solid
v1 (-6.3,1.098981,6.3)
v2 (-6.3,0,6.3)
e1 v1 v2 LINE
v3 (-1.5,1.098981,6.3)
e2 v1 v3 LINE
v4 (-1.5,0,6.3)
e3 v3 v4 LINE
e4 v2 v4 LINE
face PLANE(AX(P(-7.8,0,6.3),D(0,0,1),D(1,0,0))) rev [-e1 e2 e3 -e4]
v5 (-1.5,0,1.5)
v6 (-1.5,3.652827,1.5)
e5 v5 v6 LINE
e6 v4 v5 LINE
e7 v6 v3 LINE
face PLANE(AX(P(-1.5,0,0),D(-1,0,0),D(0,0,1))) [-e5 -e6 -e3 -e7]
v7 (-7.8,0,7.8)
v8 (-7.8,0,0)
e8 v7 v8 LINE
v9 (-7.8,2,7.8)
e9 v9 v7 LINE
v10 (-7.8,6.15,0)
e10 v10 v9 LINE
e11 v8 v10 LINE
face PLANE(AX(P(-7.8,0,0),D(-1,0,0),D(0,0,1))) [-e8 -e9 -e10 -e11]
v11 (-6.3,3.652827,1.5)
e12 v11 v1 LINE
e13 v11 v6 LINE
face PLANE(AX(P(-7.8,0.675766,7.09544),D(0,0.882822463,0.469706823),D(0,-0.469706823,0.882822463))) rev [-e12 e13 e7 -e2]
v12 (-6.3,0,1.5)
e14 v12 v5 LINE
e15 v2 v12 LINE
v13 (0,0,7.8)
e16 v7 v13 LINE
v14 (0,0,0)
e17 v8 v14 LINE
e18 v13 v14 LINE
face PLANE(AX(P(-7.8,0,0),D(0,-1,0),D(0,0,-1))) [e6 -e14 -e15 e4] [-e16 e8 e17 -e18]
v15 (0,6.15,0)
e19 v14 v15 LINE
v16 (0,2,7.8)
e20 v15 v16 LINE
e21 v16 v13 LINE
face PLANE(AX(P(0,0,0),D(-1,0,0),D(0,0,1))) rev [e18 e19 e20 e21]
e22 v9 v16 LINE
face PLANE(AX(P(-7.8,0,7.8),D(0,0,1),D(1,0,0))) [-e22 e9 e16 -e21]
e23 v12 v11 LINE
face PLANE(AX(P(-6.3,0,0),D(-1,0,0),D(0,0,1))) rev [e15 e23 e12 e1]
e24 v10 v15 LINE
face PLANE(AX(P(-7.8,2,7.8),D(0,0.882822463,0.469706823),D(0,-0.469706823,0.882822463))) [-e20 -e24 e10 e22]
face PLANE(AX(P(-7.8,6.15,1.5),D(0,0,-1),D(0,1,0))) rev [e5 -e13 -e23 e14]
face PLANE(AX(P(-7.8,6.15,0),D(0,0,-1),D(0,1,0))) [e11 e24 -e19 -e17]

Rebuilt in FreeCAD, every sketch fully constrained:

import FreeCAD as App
import Part
import Sketcher
from FreeCAD import Vector


def faces_at(feature, points):
    """Names of the faces that lie closest to the given points."""
    faces = feature.Shape.Faces
    near = lambda p: min(range(len(faces)), key=lambda i: faces[i].distToShape(Part.Vertex(*p))[0])
    return sorted({f"Face{near(p) + 1}" for p in points})

doc = App.newDocument("Part")
body = doc.addObject("PartDesign::Body", "Body")

# Sketch on YZ plane
sketch1 = body.newObject("Sketcher::SketchObject", "Sketch")
sketch1.AttachmentSupport = (doc.getObject("YZ_Plane"), [""])
sketch1.MapMode = "FlatFace"
sketch1.addGeometry([
    Part.LineSegment(Vector(0, 7.8, 0), Vector(0, 0, 0)),
    Part.LineSegment(Vector(0, 0, 0), Vector(6.2, 0, 0)),
    Part.LineSegment(Vector(6.2, 0, 0), Vector(2, 7.8, 0)),
    Part.LineSegment(Vector(2, 7.8, 0), Vector(0, 7.8, 0)),
], False)
sketch1.addConstraint([
    Sketcher.Constraint("Coincident", 0, 2, 1, 1),
    Sketcher.Constraint("Coincident", 1, 2, 2, 1),
    Sketcher.Constraint("Coincident", 2, 2, 3, 1),
    Sketcher.Constraint("Coincident", 3, 2, 0, 1),
    Sketcher.Constraint("Vertical", 0),
    Sketcher.Constraint("Horizontal", 1),
    Sketcher.Constraint("Horizontal", 3),
    Sketcher.Constraint("Coincident", 0, 2, -1, 1),
    Sketcher.Constraint("DistanceX", 3, 2, 3, 1, 2.0),
    Sketcher.Constraint("DistanceY", 0, 2, 0, 1, 7.8),
    Sketcher.Constraint("DistanceX", 1, 1, 1, 2, 6.15),
])
pad1 = body.newObject("PartDesign::Pad", "Pad")
pad1.Profile = sketch1
pad1.Length = 7.8
pad1.Reversed = True
doc.recompute()

thickness = body.newObject("PartDesign::Thickness", "Thickness")
thickness.Base = (pad1, faces_at(pad1, [(-3.9, 0, 3.9)]))
thickness.Value = 1.5
thickness.Reversed = True
thickness.Join = "Intersection"

doc.recompute()
